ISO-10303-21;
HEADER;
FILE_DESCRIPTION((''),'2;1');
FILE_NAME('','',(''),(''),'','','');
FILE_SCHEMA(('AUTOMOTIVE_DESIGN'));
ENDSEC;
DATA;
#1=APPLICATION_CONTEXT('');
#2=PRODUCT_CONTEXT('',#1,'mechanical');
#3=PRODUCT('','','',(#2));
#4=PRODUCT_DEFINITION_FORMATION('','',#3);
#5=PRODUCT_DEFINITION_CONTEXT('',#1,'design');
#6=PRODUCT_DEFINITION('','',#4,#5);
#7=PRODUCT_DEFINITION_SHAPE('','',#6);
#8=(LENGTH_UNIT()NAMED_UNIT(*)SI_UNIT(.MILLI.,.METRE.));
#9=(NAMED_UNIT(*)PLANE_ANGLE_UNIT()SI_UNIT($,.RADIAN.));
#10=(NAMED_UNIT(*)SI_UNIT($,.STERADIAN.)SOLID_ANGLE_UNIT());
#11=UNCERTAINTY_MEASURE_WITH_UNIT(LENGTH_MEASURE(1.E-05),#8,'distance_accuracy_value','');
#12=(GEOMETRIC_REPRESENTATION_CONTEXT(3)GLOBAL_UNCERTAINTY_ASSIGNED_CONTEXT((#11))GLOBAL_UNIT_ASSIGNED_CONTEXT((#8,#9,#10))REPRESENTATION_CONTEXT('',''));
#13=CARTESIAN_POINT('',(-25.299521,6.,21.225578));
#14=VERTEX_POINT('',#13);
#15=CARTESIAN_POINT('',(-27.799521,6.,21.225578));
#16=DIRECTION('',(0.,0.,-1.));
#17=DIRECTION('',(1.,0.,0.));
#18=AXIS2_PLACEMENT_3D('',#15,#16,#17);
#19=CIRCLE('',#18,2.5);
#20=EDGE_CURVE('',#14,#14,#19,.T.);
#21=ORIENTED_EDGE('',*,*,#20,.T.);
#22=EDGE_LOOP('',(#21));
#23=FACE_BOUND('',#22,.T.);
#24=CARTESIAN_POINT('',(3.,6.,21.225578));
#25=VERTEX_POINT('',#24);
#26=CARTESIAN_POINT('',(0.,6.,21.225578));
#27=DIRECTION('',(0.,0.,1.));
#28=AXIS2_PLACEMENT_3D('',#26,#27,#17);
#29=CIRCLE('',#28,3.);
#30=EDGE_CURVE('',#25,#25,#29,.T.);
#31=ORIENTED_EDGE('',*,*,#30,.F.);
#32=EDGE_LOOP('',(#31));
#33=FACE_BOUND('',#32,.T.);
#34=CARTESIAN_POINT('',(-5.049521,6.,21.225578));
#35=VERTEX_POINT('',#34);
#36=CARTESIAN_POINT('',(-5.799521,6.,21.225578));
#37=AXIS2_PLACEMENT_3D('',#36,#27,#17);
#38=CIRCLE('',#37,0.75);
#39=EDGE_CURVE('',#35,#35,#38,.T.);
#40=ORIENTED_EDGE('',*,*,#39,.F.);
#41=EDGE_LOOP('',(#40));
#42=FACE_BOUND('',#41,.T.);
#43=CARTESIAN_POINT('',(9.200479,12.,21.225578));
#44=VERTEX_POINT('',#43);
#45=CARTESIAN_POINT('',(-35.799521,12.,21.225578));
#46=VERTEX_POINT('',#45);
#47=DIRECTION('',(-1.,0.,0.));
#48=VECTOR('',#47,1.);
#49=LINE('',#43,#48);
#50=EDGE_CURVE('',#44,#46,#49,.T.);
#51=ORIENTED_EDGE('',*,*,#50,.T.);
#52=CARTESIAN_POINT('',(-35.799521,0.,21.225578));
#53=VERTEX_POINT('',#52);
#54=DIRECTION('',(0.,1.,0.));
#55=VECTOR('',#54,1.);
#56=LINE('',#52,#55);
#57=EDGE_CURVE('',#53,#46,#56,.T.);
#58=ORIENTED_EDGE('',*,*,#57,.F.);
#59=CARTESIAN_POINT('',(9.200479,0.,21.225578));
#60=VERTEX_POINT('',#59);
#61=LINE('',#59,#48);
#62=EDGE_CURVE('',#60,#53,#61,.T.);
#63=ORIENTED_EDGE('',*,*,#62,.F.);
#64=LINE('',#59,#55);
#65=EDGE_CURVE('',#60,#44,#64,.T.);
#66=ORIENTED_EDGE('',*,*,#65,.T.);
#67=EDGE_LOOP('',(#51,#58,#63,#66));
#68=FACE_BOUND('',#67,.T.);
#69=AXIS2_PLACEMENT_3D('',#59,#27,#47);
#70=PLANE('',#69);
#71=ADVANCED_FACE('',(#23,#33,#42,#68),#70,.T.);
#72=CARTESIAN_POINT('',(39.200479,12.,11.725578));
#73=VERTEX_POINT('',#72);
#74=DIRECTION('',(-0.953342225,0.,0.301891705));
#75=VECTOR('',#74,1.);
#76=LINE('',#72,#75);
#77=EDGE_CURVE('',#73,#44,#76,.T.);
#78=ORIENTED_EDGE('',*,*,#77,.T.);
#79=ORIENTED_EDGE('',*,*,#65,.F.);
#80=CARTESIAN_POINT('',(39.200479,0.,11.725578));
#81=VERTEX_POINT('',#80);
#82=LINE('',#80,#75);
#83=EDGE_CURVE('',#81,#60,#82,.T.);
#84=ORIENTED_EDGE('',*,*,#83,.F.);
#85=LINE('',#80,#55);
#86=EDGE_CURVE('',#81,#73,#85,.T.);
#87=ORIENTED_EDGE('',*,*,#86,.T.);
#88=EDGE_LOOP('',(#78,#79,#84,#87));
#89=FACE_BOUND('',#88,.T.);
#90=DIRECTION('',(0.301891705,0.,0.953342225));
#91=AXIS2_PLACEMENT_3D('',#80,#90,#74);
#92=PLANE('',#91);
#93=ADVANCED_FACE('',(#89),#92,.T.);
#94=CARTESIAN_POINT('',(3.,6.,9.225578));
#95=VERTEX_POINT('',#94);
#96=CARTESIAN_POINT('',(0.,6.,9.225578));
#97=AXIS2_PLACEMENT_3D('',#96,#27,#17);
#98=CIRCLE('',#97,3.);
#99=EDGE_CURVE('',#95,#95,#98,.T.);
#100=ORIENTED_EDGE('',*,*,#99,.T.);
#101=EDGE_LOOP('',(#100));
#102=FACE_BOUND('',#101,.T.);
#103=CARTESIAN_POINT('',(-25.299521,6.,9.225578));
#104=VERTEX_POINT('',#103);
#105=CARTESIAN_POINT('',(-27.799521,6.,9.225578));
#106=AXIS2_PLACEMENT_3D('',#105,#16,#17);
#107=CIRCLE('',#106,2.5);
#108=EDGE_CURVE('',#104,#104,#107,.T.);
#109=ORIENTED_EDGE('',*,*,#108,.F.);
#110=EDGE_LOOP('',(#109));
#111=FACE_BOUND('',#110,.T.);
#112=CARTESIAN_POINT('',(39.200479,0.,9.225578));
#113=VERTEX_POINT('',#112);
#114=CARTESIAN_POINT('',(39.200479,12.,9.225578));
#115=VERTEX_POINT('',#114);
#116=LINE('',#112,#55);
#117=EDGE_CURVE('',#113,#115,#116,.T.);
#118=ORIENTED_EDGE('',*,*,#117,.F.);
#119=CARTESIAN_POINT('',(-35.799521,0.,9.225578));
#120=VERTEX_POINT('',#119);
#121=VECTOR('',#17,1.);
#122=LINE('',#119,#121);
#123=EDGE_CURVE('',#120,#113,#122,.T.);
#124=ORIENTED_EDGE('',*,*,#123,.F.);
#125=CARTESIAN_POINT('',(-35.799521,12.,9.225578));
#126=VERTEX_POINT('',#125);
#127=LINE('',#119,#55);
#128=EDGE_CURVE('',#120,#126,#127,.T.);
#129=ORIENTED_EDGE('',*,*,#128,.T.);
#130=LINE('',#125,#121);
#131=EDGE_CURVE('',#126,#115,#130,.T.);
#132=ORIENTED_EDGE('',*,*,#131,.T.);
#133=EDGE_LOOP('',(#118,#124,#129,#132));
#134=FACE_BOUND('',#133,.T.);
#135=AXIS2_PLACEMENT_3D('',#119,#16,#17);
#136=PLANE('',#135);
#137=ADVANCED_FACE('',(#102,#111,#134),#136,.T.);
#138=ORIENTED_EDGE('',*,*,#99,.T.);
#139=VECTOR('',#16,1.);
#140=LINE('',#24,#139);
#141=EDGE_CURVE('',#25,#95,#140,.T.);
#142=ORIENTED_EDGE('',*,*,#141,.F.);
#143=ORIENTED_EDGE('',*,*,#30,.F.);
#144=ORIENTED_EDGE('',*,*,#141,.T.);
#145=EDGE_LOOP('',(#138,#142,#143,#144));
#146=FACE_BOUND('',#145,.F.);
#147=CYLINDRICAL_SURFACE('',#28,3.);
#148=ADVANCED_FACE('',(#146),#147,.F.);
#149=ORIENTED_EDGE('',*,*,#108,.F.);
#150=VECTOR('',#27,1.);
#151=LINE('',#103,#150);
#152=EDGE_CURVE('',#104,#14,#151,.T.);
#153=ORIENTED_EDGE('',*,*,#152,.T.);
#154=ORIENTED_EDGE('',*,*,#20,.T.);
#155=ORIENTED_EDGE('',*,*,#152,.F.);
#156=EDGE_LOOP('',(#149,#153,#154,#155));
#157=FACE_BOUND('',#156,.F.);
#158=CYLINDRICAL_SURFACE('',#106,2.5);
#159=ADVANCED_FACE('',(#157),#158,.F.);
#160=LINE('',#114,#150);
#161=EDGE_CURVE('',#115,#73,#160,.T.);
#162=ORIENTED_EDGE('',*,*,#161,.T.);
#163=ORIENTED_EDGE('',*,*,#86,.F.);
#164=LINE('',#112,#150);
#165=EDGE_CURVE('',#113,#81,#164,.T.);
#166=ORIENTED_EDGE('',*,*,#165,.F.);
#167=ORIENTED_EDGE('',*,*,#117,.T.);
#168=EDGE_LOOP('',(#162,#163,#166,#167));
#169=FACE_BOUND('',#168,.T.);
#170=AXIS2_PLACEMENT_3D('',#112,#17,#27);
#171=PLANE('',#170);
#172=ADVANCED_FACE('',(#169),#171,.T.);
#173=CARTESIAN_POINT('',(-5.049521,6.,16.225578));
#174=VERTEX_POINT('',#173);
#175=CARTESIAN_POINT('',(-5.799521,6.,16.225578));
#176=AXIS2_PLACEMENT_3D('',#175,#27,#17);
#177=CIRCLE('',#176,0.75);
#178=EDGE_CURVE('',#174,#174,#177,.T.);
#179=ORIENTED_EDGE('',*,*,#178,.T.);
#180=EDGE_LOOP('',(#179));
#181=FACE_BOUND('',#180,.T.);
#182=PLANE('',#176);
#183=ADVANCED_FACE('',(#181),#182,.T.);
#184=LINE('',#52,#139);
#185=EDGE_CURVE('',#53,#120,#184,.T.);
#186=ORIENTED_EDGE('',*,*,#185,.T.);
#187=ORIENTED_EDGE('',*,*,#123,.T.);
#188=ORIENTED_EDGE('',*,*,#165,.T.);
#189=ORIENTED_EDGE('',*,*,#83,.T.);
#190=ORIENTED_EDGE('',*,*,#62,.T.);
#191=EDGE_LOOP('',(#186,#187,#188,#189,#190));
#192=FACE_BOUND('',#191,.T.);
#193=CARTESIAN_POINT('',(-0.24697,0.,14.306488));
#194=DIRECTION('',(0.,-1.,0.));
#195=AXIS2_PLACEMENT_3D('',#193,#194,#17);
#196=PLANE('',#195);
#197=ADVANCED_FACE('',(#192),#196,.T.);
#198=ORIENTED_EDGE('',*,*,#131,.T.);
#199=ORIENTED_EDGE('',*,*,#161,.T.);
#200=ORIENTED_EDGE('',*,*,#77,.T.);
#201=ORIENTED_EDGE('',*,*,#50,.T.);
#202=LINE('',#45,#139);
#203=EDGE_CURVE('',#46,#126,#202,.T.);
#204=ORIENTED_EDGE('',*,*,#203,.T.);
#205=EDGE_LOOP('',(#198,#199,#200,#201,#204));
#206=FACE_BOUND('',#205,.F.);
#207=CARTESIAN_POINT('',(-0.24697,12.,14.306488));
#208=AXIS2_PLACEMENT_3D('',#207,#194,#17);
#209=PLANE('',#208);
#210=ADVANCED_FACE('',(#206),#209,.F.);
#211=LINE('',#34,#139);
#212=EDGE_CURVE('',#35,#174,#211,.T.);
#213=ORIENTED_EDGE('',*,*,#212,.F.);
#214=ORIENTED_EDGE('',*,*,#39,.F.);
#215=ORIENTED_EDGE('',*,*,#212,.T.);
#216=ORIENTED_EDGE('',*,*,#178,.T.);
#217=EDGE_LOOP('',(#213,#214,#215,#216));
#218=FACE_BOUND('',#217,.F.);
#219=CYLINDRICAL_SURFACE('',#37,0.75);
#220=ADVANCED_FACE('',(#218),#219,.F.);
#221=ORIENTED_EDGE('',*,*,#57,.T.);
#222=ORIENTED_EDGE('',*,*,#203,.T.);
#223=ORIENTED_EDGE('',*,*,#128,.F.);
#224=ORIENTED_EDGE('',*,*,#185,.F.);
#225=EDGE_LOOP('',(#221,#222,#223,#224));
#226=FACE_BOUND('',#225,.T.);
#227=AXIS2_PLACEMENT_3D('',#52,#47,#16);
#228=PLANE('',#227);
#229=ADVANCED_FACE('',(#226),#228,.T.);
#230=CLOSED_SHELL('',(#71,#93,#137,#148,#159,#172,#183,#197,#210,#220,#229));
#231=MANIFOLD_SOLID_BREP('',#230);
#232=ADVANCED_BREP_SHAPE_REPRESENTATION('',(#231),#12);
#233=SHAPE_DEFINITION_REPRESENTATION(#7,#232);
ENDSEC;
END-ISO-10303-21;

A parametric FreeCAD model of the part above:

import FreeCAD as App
import Part
import Sketcher
Q = App.Units.Quantity

doc = App.newDocument("Part")
params = doc.addObject("Spreadsheet::Sheet", "Params")
for row, (alias, value) in enumerate([
    ("sketch1_width", "45 mm"),
    ("sketch1_width2", "75 mm"),
    ("sketch1_height", "12 mm"),
    ("sketch1_height2", "2.5 mm"),
    ("pad1_length", "12 mm"),
    ("sketch2_diameter", "6 mm"),
    ("sketch3_diameter", "1.5 mm"),
    ("pocket2_length", "5 mm"),
    ("sketch4_diameter", "5 mm"),
], start=1):
    params.set(f"A{row}", alias)
    params.set(f"B{row}", "=" + value)
    params.setAlias(f"B{row}", alias)

body = doc.addObject("PartDesign::Body", "Body")

# Sketch on XZ plane
sketch1 = body.newObject("Sketcher::SketchObject", "Sketch")
sketch1.AttachmentSupport = (doc.getObject("XZ_Plane"), [""])
sketch1.MapMode = "FlatFace"
sketch1.addGeometry(Part.LineSegment(App.Vector(9.2, 21.2, 0), App.Vector(-35.8, 21.2, 0)), False)
sketch1.addGeometry(Part.LineSegment(App.Vector(-35.8, 21.2, 0), App.Vector(-35.8, 9.2, 0)), False)
sketch1.addGeometry(Part.LineSegment(App.Vector(-35.8, 9.2, 0), App.Vector(39.2, 9.2, 0)), False)
sketch1.addGeometry(Part.LineSegment(App.Vector(39.2, 9.2, 0), App.Vector(39.2, 11.7, 0)), False)
sketch1.addGeometry(Part.LineSegment(App.Vector(39.2, 11.7, 0), App.Vector(9.2, 21.2, 0)), False)
sketch1.addConstraint(Sketcher.Constraint("Coincident", 0, 2, 1, 1))
sketch1.addConstraint(Sketcher.Constraint("Coincident", 1, 2, 2, 1))
sketch1.addConstraint(Sketcher.Constraint("Coincident", 2, 2, 3, 1))
sketch1.addConstraint(Sketcher.Constraint("Coincident", 3, 2, 4, 1))
sketch1.addConstraint(Sketcher.Constraint("Coincident", 4, 2, 0, 1))
sketch1.addConstraint(Sketcher.Constraint("Horizontal", 0))
sketch1.addConstraint(Sketcher.Constraint("Vertical", 1))
sketch1.addConstraint(Sketcher.Constraint("Horizontal", 2))
sketch1.addConstraint(Sketcher.Constraint("Vertical", 3))
sketch1.addConstraint(Sketcher.Constraint("DistanceX", 0, 2, 0, 1, Q("45 mm")))
sketch1.addConstraint(Sketcher.Constraint("DistanceX", 2, 1, 2, 2, Q("75 mm")))
sketch1.addConstraint(Sketcher.Constraint("DistanceY", 1, 2, 1, 1, Q("12 mm")))
sketch1.addConstraint(Sketcher.Constraint("DistanceY", 3, 1, 3, 2, Q("2.5 mm")))
sketch1.addConstraint(Sketcher.Constraint("DistanceX", 0, 2, -1, 1, Q("35.799521 mm")))
sketch1.addConstraint(Sketcher.Constraint("DistanceY", -1, 1, 0, 2, Q("21.225578 mm")))
sketch1.setExpression("Constraints[9]", "Params.sketch1_width")
sketch1.setExpression("Constraints[10]", "Params.sketch1_width2")
sketch1.setExpression("Constraints[11]", "Params.sketch1_height")
sketch1.setExpression("Constraints[12]", "Params.sketch1_height2")
pad1 = body.newObject("PartDesign::Pad", "Pad")
pad1.Profile = sketch1
pad1.setExpression("Length", "Params.pad1_length")
pad1.Reversed = True

# Sketch on XY plane
sketch2 = body.newObject("Sketcher::SketchObject", "Sketch001")
sketch2.AttachmentSupport = (doc.getObject("XY_Plane"), [""])
sketch2.MapMode = "FlatFace"
sketch2.AttachmentOffset = App.Placement(App.Vector(0, 0, 21.225578), App.Rotation())
sketch2.addGeometry(Part.Circle(App.Vector(0, 6, 0), App.Vector(0, 0, 1), 3), False)
sketch2.addConstraint(Sketcher.Constraint("PointOnObject", 0, 3, -2))
sketch2.addConstraint(Sketcher.Constraint("Diameter", 0, Q("6 mm")))
sketch2.addConstraint(Sketcher.Constraint("DistanceY", -1, 1, 0, 3, Q("6 mm")))
sketch2.setExpression("Constraints[1]", "Params.sketch2_diameter")
pocket1 = body.newObject("PartDesign::Pocket", "Pocket")
pocket1.Profile = sketch2
pocket1.Type = "ThroughAll"

# Sketch on XY plane
sketch3 = body.newObject("Sketcher::SketchObject", "Sketch002")
sketch3.AttachmentSupport = (doc.getObject("XY_Plane"), [""])
sketch3.MapMode = "FlatFace"
sketch3.AttachmentOffset = App.Placement(App.Vector(0, 0, 21.225578), App.Rotation())
sketch3.addGeometry(Part.Circle(App.Vector(-5.8, 6, 0), App.Vector(0, 0, 1), 0.8), False)
sketch3.addConstraint(Sketcher.Constraint("Diameter", 0, Q("1.5 mm")))
sketch3.addConstraint(Sketcher.Constraint("DistanceY", -1, 1, 0, 3, Q("6 mm")))
sketch3.addConstraint(Sketcher.Constraint("DistanceX", 0, 3, -1, 1, Q("5.799521 mm")))
sketch3.setExpression("Constraints[0]", "Params.sketch3_diameter")
pocket2 = body.newObject("PartDesign::Pocket", "Pocket001")
pocket2.Profile = sketch3
pocket2.setExpression("Length", "Params.pocket2_length")

# Sketch on XY plane
sketch4 = body.newObject("Sketcher::SketchObject", "Sketch003")
sketch4.AttachmentSupport = (doc.getObject("XY_Plane"), [""])
sketch4.MapMode = "FlatFace"
sketch4.AttachmentOffset = App.Placement(App.Vector(0, 0, 9.225578), App.Rotation())
sketch4.addGeometry(Part.Circle(App.Vector(-27.8, 6, 0), App.Vector(0, 0, 1), 2.5), False)
sketch4.addConstraint(Sketcher.Constraint("Diameter", 0, Q("5 mm")))
sketch4.addConstraint(Sketcher.Constraint("DistanceY", -1, 1, 0, 3, Q("6 mm")))
sketch4.addConstraint(Sketcher.Constraint("DistanceX", 0, 3, -1, 1, Q("27.799521 mm")))
sketch4.setExpression("Constraints[0]", "Params.sketch4_diameter")
pocket3 = body.newObject("PartDesign::Pocket", "Pocket002")
pocket3.Profile = sketch4
pocket3.Type = "ThroughAll"
pocket3.Reversed = True

doc.recompute()
